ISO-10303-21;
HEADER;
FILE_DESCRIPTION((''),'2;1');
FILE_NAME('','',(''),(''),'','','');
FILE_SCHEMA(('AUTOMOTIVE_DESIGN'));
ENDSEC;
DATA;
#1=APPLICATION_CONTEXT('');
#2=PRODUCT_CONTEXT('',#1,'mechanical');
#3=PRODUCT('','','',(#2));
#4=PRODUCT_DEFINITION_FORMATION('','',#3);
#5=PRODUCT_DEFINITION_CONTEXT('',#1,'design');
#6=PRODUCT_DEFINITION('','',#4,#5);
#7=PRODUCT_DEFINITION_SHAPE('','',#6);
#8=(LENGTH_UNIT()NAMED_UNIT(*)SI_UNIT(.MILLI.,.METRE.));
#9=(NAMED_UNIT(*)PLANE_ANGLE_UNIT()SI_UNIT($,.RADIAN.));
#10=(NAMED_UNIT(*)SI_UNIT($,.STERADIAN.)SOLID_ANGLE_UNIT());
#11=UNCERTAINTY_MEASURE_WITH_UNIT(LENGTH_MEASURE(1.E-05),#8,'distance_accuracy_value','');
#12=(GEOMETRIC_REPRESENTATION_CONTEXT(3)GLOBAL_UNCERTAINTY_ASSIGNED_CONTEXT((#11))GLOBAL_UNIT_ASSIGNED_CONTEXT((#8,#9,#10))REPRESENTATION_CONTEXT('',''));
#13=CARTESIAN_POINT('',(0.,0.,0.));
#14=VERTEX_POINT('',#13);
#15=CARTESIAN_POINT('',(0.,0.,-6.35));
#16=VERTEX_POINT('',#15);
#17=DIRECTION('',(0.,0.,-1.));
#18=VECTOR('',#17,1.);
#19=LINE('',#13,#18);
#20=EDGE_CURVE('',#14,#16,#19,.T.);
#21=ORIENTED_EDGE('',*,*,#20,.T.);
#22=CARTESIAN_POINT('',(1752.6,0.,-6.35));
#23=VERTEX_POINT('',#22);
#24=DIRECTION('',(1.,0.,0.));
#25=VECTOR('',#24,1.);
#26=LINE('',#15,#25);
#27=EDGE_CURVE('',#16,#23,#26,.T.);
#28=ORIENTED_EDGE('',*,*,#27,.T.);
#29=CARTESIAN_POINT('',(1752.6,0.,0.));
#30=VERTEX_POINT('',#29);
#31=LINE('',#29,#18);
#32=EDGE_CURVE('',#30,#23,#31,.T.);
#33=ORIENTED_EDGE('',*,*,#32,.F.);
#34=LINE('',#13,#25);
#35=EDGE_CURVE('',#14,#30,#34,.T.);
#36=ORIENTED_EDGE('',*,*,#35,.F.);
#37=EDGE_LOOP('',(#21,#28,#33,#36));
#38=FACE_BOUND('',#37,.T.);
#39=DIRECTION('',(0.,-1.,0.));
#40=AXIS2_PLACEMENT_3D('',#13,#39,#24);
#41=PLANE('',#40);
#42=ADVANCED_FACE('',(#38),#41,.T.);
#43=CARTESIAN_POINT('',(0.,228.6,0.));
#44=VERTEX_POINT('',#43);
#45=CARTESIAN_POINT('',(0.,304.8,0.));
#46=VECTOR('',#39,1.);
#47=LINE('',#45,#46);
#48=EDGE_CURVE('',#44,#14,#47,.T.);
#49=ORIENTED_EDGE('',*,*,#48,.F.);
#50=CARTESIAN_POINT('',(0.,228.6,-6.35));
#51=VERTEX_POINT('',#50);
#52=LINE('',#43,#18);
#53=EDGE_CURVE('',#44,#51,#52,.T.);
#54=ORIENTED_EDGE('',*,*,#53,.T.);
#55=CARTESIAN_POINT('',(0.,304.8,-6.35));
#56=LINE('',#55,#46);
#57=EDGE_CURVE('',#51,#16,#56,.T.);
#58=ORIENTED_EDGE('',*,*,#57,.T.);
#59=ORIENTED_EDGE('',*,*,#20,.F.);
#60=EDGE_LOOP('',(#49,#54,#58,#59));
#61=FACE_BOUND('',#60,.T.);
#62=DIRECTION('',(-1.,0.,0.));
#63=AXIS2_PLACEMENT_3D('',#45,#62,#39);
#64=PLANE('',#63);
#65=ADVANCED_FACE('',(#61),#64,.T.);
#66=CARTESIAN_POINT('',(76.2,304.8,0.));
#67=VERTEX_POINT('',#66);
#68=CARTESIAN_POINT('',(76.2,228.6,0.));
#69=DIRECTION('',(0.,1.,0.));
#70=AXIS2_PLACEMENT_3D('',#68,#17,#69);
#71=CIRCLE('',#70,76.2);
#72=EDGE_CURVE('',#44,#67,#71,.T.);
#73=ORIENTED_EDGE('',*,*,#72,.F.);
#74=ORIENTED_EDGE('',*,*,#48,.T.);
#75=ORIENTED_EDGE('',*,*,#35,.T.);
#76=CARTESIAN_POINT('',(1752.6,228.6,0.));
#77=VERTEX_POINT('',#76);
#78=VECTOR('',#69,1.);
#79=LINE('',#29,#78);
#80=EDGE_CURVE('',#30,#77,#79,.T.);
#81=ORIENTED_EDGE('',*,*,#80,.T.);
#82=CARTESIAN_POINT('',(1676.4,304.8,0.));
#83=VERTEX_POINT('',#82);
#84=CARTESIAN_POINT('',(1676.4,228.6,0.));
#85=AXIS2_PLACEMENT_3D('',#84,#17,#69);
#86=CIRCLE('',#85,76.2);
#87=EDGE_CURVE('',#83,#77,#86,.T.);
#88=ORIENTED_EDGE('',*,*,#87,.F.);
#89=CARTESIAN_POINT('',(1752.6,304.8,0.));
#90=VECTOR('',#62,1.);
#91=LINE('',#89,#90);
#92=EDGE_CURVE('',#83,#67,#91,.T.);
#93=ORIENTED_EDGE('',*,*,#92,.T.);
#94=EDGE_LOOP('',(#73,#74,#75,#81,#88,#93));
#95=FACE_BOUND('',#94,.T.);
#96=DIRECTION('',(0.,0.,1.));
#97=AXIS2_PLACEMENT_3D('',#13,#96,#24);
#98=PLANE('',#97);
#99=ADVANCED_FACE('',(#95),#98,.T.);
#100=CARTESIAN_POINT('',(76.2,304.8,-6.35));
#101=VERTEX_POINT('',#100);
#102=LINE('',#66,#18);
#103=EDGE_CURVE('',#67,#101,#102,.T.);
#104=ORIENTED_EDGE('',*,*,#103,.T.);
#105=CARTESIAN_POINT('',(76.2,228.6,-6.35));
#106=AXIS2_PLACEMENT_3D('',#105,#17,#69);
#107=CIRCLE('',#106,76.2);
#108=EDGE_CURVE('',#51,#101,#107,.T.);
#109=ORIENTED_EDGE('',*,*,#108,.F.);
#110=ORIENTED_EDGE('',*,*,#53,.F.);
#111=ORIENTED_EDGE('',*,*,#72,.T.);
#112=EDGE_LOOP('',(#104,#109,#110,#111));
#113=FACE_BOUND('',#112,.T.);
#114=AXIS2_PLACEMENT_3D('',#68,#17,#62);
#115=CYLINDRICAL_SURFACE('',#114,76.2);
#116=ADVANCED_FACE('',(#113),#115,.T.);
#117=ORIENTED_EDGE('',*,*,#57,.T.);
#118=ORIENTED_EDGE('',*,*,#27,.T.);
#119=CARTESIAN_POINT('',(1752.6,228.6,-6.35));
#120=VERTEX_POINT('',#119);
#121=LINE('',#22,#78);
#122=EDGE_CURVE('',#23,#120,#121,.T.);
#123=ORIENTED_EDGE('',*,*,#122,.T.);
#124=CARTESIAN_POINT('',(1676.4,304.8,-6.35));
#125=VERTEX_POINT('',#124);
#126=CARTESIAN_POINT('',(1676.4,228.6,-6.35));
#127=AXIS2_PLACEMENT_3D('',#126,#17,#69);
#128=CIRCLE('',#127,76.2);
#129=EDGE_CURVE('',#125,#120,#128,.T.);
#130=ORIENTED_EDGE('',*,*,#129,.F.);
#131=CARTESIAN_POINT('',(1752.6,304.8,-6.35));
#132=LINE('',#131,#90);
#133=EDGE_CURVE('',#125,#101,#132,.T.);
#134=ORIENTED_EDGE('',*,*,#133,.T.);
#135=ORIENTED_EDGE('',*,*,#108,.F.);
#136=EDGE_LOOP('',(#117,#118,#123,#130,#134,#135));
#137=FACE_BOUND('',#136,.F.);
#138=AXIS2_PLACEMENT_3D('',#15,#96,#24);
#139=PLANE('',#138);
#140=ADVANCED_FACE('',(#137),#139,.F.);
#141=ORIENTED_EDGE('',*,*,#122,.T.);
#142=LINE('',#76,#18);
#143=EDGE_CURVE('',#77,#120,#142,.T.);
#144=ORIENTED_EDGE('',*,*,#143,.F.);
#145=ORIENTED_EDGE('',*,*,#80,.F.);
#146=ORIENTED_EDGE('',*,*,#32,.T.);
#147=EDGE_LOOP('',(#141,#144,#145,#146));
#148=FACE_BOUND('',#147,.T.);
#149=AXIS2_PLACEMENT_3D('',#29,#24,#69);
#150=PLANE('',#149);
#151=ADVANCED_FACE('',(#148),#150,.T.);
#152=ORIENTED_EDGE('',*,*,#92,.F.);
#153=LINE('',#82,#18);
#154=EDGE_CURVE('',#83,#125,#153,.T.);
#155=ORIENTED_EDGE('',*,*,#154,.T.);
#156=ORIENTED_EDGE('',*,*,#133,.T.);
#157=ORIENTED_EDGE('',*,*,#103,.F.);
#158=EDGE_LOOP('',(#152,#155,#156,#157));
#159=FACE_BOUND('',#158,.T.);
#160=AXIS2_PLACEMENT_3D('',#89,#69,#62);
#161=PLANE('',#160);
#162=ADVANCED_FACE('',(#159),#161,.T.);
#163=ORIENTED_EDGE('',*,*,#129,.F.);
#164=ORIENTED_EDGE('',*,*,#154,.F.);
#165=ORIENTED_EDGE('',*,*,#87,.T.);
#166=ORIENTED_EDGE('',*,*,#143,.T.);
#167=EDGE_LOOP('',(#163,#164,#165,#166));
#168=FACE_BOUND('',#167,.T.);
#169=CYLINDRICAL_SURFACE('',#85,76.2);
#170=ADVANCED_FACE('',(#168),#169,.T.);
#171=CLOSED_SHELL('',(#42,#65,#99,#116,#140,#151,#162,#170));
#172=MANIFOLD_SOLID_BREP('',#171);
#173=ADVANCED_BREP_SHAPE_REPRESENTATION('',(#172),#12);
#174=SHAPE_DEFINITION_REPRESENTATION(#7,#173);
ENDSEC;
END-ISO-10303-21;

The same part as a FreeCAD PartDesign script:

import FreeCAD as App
import Part
import Sketcher
Q = App.Units.Quantity


def edges_at(feature, points):
    """Names of the edges that pass closest to the given points."""
    edges = feature.Shape.Edges
    near = lambda p: min(range(len(edges)), key=lambda i: edges[i].distToShape(Part.Vertex(*p))[0])
    return sorted({f"Edge{near(p) + 1}" for p in points})

doc = App.newDocument("Part")
body = doc.addObject("PartDesign::Body", "Body")

sketch1 = body.newObject("Sketcher::SketchObject", "Sketch")
sketch1.AttachmentSupport = (doc.getObject("XY_Plane"), [""])
sketch1.MapMode = "FlatFace"
sketch1.addGeometry(Part.LineSegment(App.Vector(0, 305, 0), App.Vector(0, 0, 0)), False)
sketch1.addGeometry(Part.LineSegment(App.Vector(0, 0, 0), App.Vector(1753, 0, 0)), False)
sketch1.addGeometry(Part.LineSegment(App.Vector(1753, 0, 0), App.Vector(1753, 305, 0)), False)
sketch1.addGeometry(Part.LineSegment(App.Vector(1753, 305, 0), App.Vector(0, 305, 0)), False)
sketch1.addConstraint(Sketcher.Constraint("Coincident", 0, 2, 1, 1))
sketch1.addConstraint(Sketcher.Constraint("Coincident", 1, 2, 2, 1))
sketch1.addConstraint(Sketcher.Constraint("Coincident", 2, 2, 3, 1))
sketch1.addConstraint(Sketcher.Constraint("Coincident", 3, 2, 0, 1))
sketch1.addConstraint(Sketcher.Constraint("Vertical", 0))
sketch1.addConstraint(Sketcher.Constraint("Horizontal", 1))
sketch1.addConstraint(Sketcher.Constraint("Vertical", 2))
sketch1.addConstraint(Sketcher.Constraint("Horizontal", 3))
sketch1.addConstraint(Sketcher.Constraint("Coincident", 0, 2, -1, 1))
sketch1.addConstraint(Sketcher.Constraint("DistanceX", 1, 1, 1, 2, Q("69 in")))
sketch1.addConstraint(Sketcher.Constraint("DistanceY", 0, 2, 0, 1, Q("12 in")))
pad1 = body.newObject("PartDesign::Pad", "Pad")
pad1.Profile = sketch1
pad1.Length = Q("0.25 in")
pad1.Reversed = True
doc.recompute()

fillet = body.newObject("PartDesign::Fillet", "Fillet")
fillet.Base = (pad1, edges_at(pad1, [(0, 304.8, -3.175), (1752.6, 304.8, -3.175)]))
fillet.Radius = Q("3 in")

doc.recompute()
